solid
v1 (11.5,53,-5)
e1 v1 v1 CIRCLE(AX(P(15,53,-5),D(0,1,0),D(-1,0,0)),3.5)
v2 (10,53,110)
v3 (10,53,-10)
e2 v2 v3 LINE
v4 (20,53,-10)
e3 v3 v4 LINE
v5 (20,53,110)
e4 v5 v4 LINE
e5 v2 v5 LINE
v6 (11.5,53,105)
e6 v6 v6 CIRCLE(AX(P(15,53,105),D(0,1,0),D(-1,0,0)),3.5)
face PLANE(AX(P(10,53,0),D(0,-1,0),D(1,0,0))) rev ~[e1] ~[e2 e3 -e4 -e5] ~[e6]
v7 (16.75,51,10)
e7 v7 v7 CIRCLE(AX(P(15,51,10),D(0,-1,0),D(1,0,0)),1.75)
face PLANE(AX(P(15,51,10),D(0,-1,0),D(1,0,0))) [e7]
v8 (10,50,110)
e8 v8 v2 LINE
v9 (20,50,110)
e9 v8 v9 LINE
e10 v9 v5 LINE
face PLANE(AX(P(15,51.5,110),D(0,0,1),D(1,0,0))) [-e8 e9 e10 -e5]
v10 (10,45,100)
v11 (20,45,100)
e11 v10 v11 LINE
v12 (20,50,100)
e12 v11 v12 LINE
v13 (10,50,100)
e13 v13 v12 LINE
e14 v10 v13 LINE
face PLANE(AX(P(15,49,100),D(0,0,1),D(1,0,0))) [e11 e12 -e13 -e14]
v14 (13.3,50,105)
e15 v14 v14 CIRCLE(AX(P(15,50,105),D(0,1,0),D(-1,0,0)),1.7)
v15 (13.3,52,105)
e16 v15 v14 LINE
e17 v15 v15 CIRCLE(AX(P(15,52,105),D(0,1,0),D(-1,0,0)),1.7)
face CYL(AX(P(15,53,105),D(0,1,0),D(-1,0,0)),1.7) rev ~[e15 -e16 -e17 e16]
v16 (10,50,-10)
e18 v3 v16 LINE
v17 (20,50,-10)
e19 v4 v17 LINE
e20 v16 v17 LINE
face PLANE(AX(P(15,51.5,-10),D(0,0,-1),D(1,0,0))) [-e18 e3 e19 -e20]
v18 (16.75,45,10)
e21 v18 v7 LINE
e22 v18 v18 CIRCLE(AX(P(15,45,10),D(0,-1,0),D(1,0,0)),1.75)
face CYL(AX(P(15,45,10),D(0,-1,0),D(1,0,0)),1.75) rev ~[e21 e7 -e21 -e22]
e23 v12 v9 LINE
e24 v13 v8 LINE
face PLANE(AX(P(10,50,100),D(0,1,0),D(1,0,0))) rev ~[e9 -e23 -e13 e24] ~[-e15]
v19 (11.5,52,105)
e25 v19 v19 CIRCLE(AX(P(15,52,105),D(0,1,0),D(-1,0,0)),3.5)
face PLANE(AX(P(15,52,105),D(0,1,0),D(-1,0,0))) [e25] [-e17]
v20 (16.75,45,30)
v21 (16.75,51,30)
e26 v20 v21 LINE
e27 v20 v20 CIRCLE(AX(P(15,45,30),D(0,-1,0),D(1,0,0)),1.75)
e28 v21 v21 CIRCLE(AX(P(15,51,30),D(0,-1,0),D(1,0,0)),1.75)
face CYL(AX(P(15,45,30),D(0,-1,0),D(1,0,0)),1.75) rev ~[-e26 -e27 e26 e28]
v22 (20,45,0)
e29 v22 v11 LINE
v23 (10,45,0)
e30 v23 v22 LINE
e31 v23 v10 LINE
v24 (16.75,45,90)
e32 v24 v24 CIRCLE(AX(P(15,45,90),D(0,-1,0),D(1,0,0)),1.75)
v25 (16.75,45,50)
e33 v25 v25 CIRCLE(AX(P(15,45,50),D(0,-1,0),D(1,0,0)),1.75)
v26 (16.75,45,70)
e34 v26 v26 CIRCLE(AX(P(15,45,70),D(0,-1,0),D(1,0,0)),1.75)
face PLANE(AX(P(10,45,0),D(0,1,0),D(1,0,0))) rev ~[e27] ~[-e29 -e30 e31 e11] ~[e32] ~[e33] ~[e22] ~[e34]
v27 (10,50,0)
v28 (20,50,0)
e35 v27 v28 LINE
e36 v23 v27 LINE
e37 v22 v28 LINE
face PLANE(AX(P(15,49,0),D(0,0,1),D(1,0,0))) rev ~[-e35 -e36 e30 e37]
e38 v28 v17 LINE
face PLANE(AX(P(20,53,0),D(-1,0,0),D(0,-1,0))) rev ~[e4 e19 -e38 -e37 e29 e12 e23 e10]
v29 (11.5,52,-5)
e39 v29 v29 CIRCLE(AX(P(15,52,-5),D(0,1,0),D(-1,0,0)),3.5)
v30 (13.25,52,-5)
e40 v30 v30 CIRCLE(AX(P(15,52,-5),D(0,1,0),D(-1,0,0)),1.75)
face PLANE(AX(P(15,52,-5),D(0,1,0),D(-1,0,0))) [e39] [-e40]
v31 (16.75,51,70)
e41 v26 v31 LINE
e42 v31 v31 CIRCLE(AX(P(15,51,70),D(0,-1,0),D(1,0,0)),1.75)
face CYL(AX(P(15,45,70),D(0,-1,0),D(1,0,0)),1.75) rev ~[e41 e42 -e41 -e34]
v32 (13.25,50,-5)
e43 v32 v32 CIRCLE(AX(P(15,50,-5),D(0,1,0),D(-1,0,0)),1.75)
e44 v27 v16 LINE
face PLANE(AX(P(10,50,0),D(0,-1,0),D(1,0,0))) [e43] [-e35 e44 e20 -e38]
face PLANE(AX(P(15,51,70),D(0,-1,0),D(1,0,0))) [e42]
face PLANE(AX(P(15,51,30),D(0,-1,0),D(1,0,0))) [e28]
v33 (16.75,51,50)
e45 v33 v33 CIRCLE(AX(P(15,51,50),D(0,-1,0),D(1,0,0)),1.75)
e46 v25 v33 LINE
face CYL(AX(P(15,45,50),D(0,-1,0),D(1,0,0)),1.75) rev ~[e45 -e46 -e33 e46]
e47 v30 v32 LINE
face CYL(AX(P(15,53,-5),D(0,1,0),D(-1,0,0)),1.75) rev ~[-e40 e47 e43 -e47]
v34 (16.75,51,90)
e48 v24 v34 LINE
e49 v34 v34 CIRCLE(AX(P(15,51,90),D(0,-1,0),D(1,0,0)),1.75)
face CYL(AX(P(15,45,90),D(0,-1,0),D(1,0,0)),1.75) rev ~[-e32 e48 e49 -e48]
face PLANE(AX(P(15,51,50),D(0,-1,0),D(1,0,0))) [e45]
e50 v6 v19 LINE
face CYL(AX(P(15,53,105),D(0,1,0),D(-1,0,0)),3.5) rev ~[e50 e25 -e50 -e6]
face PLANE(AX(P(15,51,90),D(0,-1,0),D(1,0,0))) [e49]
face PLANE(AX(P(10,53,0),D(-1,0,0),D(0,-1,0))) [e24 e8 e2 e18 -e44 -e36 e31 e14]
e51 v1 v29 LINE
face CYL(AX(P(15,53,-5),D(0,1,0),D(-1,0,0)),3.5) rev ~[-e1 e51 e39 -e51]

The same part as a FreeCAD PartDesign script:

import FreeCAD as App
import Part
import Sketcher

doc = App.newDocument("Part")
body = doc.addObject("PartDesign::Body", "Body")

# Sketch on XY plane
sketch1 = doc.addObject("Sketcher::SketchObject", "Sketch")
body.addObject(sketch1)
sketch1.AttachmentSupport = (doc.XY_Plane, [""])
sketch1.MapMode = "FlatFace"
sketch1.addGeometry([
    Part.LineSegment(App.Vector(-20, 53, 0), App.Vector(-20, 45, 0)),
    Part.LineSegment(App.Vector(-20, 45, 0), App.Vector(-10, 45, 0)),
    Part.LineSegment(App.Vector(-10, 45, 0), App.Vector(-10, 53, 0)),
    Part.LineSegment(App.Vector(-10, 53, 0), App.Vector(-20, 53, 0)),
], False)
sketch1.addConstraint([
    Sketcher.Constraint("Coincident", 0, 2, 1, 1),
    Sketcher.Constraint("Coincident", 1, 2, 2, 1),
    Sketcher.Constraint("Coincident", 2, 2, 3, 1),
    Sketcher.Constraint("Coincident", 3, 2, 0, 1),
    Sketcher.Constraint("Vertical", 0),
    Sketcher.Constraint("Horizontal", 1),
    Sketcher.Constraint("Vertical", 2),
    Sketcher.Constraint("Horizontal", 3),
    Sketcher.Constraint("DistanceX", 1, 1, 1, 2, 10.0),
    Sketcher.Constraint("DistanceY", 0, 2, 0, 1, 8.0),
    Sketcher.Constraint("DistanceX", 0, 2, -1, 1, 20.0),
    Sketcher.Constraint("DistanceY", -1, 1, 0, 2, 45.0),
])
pad1 = doc.addObject("PartDesign::Pad", "Pad")
body.addObject(pad1)
pad1.Profile = sketch1
pad1.Length = 100

# Sketch on XY plane
sketch2 = doc.addObject("Sketcher::SketchObject", "Sketch001")
body.addObject(sketch2)
sketch2.AttachmentSupport = (doc.XY_Plane, [""])
sketch2.MapMode = "FlatFace"
sketch2.AttachmentOffset = App.Placement(App.Vector(0, 0, 100), App.Rotation())
sketch2.addGeometry([
    Part.LineSegment(App.Vector(-20, 53, 0), App.Vector(-20, 50, 0)),
    Part.LineSegment(App.Vector(-20, 50, 0), App.Vector(-10, 50, 0)),
    Part.LineSegment(App.Vector(-10, 50, 0), App.Vector(-10, 53, 0)),
    Part.LineSegment(App.Vector(-10, 53, 0), App.Vector(-20, 53, 0)),
], False)
sketch2.addConstraint([
    Sketcher.Constraint("Coincident", 0, 2, 1, 1),
    Sketcher.Constraint("Coincident", 1, 2, 2, 1),
    Sketcher.Constraint("Coincident", 2, 2, 3, 1),
    Sketcher.Constraint("Coincident", 3, 2, 0, 1),
    Sketcher.Constraint("Vertical", 0),
    Sketcher.Constraint("Horizontal", 1),
    Sketcher.Constraint("Vertical", 2),
    Sketcher.Constraint("Horizontal", 3),
    Sketcher.Constraint("DistanceX", 1, 1, 1, 2, 10.0),
    Sketcher.Constraint("DistanceY", 0, 2, 0, 1, 3.0),
    Sketcher.Constraint("DistanceX", 0, 2, -1, 1, 20.0),
    Sketcher.Constraint("DistanceY", -1, 1, 0, 2, 50.0),
])
pad2 = doc.addObject("PartDesign::Pad", "Pad001")
body.addObject(pad2)
pad2.Profile = sketch2
pad2.Length = 10

# Sketch on XZ plane
sketch3 = doc.addObject("Sketcher::SketchObject", "Sketch002")
body.addObject(sketch3)
sketch3.AttachmentSupport = (doc.XZ_Plane, [""])
sketch3.MapMode = "FlatFace"
sketch3.AttachmentOffset = App.Placement(App.Vector(0, 0, -53), App.Rotation())
sketch3.addGeometry(Part.Circle(App.Vector(-15, 105, 0), App.Vector(0, 0, 1), 1.7), False)
sketch3.addConstraint([
    Sketcher.Constraint("Diameter", 0, 3.4),
    Sketcher.Constraint("DistanceX", 0, 3, -1, 1, 15.0),
    Sketcher.Constraint("DistanceY", -1, 1, 0, 3, 105.0),
])
pocket1 = doc.addObject("PartDesign::Pocket", "Pocket")
body.addObject(pocket1)
pocket1.Profile = sketch3
pocket1.Length = 5
pocket1.Reversed = True

# Sketch on XZ plane
sketch4 = doc.addObject("Sketcher::SketchObject", "Sketch003")
body.addObject(sketch4)
sketch4.AttachmentSupport = (doc.XZ_Plane, [""])
sketch4.MapMode = "FlatFace"
sketch4.AttachmentOffset = App.Placement(App.Vector(0, 0, -53), App.Rotation())
sketch4.addGeometry(Part.Circle(App.Vector(-15, 105, 0), App.Vector(0, 0, 1), 3.5), False)
sketch4.addConstraint([
    Sketcher.Constraint("Diameter", 0, 7.0),
    Sketcher.Constraint("DistanceX", 0, 3, -1, 1, 15.0),
    Sketcher.Constraint("DistanceY", -1, 1, 0, 3, 105.0),
])
pocket2 = doc.addObject("PartDesign::Pocket", "Pocket001")
body.addObject(pocket2)
pocket2.Profile = sketch4
pocket2.Length = 1
pocket2.Reversed = True

# Sketch on XY plane
sketch5 = doc.addObject("Sketcher::SketchObject", "Sketch004")
body.addObject(sketch5)
sketch5.AttachmentSupport = (doc.XY_Plane, [""])
sketch5.MapMode = "FlatFace"
sketch5.addGeometry([
    Part.LineSegment(App.Vector(-20, 50, 0), App.Vector(-20, 53, 0)),
    Part.LineSegment(App.Vector(-20, 53, 0), App.Vector(-10, 53, 0)),
    Part.LineSegment(App.Vector(-10, 53, 0), App.Vector(-10, 50, 0)),
    Part.LineSegment(App.Vector(-10, 50, 0), App.Vector(-20, 50, 0)),
], False)
sketch5.addConstraint([
    Sketcher.Constraint("Coincident", 0, 2, 1, 1),
    Sketcher.Constraint("Coincident", 1, 2, 2, 1),
    Sketcher.Constraint("Coincident", 2, 2, 3, 1),
    Sketcher.Constraint("Coincident", 3, 2, 0, 1),
    Sketcher.Constraint("Vertical", 0),
    Sketcher.Constraint("Horizontal", 1),
    Sketcher.Constraint("Vertical", 2),
    Sketcher.Constraint("Horizontal", 3),
    Sketcher.Constraint("DistanceX", 1, 1, 1, 2, 10.0),
    Sketcher.Constraint("DistanceY", 0, 1, 0, 2, 3.0),
    Sketcher.Constraint("DistanceX", 0, 2, -1, 1, 20.0),
    Sketcher.Constraint("DistanceY", -1, 1, 0, 2, 53.0),
])
pad3 = doc.addObject("PartDesign::Pad", "Pad002")
body.addObject(pad3)
pad3.Profile = sketch5
pad3.Length = 10
pad3.Reversed = True

# Sketch on XZ plane
sketch6 = doc.addObject("Sketcher::SketchObject", "Sketch005")
body.addObject(sketch6)
sketch6.AttachmentSupport = (doc.XZ_Plane, [""])
sketch6.MapMode = "FlatFace"
sketch6.AttachmentOffset = App.Placement(App.Vector(0, 0, -53), App.Rotation())
sketch6.addGeometry(Part.Circle(App.Vector(-15, -5, 0), App.Vector(0, 0, 1), 1.75), False)
sketch6.addConstraint([
    Sketcher.Constraint("Diameter", 0, 3.5),
    Sketcher.Constraint("DistanceX", 0, 3, -1, 1, 15.0),
    Sketcher.Constraint("DistanceY", 0, 3, -1, 1, 5.0),
])
pocket3 = doc.addObject("PartDesign::Pocket", "Pocket002")
body.addObject(pocket3)
pocket3.Profile = sketch6
pocket3.Length = 5
pocket3.Reversed = True

# Sketch on XZ plane
sketch7 = doc.addObject("Sketcher::SketchObject", "Sketch006")
body.addObject(sketch7)
sketch7.AttachmentSupport = (doc.XZ_Plane, [""])
sketch7.MapMode = "FlatFace"
sketch7.AttachmentOffset = App.Placement(App.Vector(0, 0, -53), App.Rotation())
sketch7.addGeometry(Part.Circle(App.Vector(-15, -5, 0), App.Vector(0, 0, 1), 3.5), False)
sketch7.addConstraint([
    Sketcher.Constraint("Diameter", 0, 7.0),
    Sketcher.Constraint("DistanceX", 0, 3, -1, 1, 15.0),
    Sketcher.Constraint("DistanceY", 0, 3, -1, 1, 5.0),
])
pocket4 = doc.addObject("PartDesign::Pocket", "Pocket003")
body.addObject(pocket4)
pocket4.Profile = sketch7
pocket4.Length = 1
pocket4.Reversed = True

# Sketch on XZ plane
sketch8 = doc.addObject("Sketcher::SketchObject", "Sketch007")
body.addObject(sketch8)
sketch8.AttachmentSupport = (doc.XZ_Plane, [""])
sketch8.MapMode = "FlatFace"
sketch8.AttachmentOffset = App.Placement(App.Vector(0, 0, -45), App.Rotation())
sketch8.addGeometry([
    Part.Circle(App.Vector(-15, 90, 0), App.Vector(0, 0, 1), 1.75),  # 0
    Part.Circle(App.Vector(-15, 70, 0), App.Vector(0, 0, 1), 1.75),  # 1
    Part.Circle(App.Vector(-15, 50, 0), App.Vector(0, 0, 1), 1.75),  # 2
    Part.Circle(App.Vector(-15, 30, 0), App.Vector(0, 0, 1), 1.75),  # 3
    Part.Circle(App.Vector(-15, 10, 0), App.Vector(0, 0, 1), 1.75),  # 4
], False)
sketch8.addConstraint([
    Sketcher.Constraint("Equal", 0, 1),
    Sketcher.Constraint("Equal", 1, 2),
    Sketcher.Constraint("Equal", 2, 3),
    Sketcher.Constraint("Equal", 3, 4),
    Sketcher.Constraint("Vertical", 0, 3, 1, 3),
    Sketcher.Constraint("Vertical", 1, 3, 2, 3),
    Sketcher.Constraint("Vertical", 2, 3, 3, 3),
    Sketcher.Constraint("Vertical", 3, 3, 4, 3),
    Sketcher.Constraint("Diameter", 0, 3.5),
    Sketcher.Constraint("DistanceX", 0, 3, -1, 1, 15.0),
    Sketcher.Constraint("DistanceY", -1, 1, 0, 3, 90.0),
    Sketcher.Constraint("DistanceY", -1, 1, 1, 3, 70.0),
    Sketcher.Constraint("DistanceY", -1, 1, 2, 3, 50.0),
    Sketcher.Constraint("DistanceY", -1, 1, 3, 3, 30.0),
    Sketcher.Constraint("DistanceY", -1, 1, 4, 3, 10.0),
])
pocket5 = doc.addObject("PartDesign::Pocket", "Pocket004")
body.addObject(pocket5)
pocket5.Profile = sketch8
pocket5.Length = 6
body2 = doc.addObject("PartDesign::Body", "Body001")
doc.recompute()

body.Placement = App.Placement(App.Vector(30, 0, 0), App.Rotation(App.Vector(0, 0, 1), 0))
boolean = doc.addObject("PartDesign::Boolean", "Boolean")
body2.addObject(boolean)
boolean.Type = "Fuse"
boolean.addObjects([body])

doc.recompute()
